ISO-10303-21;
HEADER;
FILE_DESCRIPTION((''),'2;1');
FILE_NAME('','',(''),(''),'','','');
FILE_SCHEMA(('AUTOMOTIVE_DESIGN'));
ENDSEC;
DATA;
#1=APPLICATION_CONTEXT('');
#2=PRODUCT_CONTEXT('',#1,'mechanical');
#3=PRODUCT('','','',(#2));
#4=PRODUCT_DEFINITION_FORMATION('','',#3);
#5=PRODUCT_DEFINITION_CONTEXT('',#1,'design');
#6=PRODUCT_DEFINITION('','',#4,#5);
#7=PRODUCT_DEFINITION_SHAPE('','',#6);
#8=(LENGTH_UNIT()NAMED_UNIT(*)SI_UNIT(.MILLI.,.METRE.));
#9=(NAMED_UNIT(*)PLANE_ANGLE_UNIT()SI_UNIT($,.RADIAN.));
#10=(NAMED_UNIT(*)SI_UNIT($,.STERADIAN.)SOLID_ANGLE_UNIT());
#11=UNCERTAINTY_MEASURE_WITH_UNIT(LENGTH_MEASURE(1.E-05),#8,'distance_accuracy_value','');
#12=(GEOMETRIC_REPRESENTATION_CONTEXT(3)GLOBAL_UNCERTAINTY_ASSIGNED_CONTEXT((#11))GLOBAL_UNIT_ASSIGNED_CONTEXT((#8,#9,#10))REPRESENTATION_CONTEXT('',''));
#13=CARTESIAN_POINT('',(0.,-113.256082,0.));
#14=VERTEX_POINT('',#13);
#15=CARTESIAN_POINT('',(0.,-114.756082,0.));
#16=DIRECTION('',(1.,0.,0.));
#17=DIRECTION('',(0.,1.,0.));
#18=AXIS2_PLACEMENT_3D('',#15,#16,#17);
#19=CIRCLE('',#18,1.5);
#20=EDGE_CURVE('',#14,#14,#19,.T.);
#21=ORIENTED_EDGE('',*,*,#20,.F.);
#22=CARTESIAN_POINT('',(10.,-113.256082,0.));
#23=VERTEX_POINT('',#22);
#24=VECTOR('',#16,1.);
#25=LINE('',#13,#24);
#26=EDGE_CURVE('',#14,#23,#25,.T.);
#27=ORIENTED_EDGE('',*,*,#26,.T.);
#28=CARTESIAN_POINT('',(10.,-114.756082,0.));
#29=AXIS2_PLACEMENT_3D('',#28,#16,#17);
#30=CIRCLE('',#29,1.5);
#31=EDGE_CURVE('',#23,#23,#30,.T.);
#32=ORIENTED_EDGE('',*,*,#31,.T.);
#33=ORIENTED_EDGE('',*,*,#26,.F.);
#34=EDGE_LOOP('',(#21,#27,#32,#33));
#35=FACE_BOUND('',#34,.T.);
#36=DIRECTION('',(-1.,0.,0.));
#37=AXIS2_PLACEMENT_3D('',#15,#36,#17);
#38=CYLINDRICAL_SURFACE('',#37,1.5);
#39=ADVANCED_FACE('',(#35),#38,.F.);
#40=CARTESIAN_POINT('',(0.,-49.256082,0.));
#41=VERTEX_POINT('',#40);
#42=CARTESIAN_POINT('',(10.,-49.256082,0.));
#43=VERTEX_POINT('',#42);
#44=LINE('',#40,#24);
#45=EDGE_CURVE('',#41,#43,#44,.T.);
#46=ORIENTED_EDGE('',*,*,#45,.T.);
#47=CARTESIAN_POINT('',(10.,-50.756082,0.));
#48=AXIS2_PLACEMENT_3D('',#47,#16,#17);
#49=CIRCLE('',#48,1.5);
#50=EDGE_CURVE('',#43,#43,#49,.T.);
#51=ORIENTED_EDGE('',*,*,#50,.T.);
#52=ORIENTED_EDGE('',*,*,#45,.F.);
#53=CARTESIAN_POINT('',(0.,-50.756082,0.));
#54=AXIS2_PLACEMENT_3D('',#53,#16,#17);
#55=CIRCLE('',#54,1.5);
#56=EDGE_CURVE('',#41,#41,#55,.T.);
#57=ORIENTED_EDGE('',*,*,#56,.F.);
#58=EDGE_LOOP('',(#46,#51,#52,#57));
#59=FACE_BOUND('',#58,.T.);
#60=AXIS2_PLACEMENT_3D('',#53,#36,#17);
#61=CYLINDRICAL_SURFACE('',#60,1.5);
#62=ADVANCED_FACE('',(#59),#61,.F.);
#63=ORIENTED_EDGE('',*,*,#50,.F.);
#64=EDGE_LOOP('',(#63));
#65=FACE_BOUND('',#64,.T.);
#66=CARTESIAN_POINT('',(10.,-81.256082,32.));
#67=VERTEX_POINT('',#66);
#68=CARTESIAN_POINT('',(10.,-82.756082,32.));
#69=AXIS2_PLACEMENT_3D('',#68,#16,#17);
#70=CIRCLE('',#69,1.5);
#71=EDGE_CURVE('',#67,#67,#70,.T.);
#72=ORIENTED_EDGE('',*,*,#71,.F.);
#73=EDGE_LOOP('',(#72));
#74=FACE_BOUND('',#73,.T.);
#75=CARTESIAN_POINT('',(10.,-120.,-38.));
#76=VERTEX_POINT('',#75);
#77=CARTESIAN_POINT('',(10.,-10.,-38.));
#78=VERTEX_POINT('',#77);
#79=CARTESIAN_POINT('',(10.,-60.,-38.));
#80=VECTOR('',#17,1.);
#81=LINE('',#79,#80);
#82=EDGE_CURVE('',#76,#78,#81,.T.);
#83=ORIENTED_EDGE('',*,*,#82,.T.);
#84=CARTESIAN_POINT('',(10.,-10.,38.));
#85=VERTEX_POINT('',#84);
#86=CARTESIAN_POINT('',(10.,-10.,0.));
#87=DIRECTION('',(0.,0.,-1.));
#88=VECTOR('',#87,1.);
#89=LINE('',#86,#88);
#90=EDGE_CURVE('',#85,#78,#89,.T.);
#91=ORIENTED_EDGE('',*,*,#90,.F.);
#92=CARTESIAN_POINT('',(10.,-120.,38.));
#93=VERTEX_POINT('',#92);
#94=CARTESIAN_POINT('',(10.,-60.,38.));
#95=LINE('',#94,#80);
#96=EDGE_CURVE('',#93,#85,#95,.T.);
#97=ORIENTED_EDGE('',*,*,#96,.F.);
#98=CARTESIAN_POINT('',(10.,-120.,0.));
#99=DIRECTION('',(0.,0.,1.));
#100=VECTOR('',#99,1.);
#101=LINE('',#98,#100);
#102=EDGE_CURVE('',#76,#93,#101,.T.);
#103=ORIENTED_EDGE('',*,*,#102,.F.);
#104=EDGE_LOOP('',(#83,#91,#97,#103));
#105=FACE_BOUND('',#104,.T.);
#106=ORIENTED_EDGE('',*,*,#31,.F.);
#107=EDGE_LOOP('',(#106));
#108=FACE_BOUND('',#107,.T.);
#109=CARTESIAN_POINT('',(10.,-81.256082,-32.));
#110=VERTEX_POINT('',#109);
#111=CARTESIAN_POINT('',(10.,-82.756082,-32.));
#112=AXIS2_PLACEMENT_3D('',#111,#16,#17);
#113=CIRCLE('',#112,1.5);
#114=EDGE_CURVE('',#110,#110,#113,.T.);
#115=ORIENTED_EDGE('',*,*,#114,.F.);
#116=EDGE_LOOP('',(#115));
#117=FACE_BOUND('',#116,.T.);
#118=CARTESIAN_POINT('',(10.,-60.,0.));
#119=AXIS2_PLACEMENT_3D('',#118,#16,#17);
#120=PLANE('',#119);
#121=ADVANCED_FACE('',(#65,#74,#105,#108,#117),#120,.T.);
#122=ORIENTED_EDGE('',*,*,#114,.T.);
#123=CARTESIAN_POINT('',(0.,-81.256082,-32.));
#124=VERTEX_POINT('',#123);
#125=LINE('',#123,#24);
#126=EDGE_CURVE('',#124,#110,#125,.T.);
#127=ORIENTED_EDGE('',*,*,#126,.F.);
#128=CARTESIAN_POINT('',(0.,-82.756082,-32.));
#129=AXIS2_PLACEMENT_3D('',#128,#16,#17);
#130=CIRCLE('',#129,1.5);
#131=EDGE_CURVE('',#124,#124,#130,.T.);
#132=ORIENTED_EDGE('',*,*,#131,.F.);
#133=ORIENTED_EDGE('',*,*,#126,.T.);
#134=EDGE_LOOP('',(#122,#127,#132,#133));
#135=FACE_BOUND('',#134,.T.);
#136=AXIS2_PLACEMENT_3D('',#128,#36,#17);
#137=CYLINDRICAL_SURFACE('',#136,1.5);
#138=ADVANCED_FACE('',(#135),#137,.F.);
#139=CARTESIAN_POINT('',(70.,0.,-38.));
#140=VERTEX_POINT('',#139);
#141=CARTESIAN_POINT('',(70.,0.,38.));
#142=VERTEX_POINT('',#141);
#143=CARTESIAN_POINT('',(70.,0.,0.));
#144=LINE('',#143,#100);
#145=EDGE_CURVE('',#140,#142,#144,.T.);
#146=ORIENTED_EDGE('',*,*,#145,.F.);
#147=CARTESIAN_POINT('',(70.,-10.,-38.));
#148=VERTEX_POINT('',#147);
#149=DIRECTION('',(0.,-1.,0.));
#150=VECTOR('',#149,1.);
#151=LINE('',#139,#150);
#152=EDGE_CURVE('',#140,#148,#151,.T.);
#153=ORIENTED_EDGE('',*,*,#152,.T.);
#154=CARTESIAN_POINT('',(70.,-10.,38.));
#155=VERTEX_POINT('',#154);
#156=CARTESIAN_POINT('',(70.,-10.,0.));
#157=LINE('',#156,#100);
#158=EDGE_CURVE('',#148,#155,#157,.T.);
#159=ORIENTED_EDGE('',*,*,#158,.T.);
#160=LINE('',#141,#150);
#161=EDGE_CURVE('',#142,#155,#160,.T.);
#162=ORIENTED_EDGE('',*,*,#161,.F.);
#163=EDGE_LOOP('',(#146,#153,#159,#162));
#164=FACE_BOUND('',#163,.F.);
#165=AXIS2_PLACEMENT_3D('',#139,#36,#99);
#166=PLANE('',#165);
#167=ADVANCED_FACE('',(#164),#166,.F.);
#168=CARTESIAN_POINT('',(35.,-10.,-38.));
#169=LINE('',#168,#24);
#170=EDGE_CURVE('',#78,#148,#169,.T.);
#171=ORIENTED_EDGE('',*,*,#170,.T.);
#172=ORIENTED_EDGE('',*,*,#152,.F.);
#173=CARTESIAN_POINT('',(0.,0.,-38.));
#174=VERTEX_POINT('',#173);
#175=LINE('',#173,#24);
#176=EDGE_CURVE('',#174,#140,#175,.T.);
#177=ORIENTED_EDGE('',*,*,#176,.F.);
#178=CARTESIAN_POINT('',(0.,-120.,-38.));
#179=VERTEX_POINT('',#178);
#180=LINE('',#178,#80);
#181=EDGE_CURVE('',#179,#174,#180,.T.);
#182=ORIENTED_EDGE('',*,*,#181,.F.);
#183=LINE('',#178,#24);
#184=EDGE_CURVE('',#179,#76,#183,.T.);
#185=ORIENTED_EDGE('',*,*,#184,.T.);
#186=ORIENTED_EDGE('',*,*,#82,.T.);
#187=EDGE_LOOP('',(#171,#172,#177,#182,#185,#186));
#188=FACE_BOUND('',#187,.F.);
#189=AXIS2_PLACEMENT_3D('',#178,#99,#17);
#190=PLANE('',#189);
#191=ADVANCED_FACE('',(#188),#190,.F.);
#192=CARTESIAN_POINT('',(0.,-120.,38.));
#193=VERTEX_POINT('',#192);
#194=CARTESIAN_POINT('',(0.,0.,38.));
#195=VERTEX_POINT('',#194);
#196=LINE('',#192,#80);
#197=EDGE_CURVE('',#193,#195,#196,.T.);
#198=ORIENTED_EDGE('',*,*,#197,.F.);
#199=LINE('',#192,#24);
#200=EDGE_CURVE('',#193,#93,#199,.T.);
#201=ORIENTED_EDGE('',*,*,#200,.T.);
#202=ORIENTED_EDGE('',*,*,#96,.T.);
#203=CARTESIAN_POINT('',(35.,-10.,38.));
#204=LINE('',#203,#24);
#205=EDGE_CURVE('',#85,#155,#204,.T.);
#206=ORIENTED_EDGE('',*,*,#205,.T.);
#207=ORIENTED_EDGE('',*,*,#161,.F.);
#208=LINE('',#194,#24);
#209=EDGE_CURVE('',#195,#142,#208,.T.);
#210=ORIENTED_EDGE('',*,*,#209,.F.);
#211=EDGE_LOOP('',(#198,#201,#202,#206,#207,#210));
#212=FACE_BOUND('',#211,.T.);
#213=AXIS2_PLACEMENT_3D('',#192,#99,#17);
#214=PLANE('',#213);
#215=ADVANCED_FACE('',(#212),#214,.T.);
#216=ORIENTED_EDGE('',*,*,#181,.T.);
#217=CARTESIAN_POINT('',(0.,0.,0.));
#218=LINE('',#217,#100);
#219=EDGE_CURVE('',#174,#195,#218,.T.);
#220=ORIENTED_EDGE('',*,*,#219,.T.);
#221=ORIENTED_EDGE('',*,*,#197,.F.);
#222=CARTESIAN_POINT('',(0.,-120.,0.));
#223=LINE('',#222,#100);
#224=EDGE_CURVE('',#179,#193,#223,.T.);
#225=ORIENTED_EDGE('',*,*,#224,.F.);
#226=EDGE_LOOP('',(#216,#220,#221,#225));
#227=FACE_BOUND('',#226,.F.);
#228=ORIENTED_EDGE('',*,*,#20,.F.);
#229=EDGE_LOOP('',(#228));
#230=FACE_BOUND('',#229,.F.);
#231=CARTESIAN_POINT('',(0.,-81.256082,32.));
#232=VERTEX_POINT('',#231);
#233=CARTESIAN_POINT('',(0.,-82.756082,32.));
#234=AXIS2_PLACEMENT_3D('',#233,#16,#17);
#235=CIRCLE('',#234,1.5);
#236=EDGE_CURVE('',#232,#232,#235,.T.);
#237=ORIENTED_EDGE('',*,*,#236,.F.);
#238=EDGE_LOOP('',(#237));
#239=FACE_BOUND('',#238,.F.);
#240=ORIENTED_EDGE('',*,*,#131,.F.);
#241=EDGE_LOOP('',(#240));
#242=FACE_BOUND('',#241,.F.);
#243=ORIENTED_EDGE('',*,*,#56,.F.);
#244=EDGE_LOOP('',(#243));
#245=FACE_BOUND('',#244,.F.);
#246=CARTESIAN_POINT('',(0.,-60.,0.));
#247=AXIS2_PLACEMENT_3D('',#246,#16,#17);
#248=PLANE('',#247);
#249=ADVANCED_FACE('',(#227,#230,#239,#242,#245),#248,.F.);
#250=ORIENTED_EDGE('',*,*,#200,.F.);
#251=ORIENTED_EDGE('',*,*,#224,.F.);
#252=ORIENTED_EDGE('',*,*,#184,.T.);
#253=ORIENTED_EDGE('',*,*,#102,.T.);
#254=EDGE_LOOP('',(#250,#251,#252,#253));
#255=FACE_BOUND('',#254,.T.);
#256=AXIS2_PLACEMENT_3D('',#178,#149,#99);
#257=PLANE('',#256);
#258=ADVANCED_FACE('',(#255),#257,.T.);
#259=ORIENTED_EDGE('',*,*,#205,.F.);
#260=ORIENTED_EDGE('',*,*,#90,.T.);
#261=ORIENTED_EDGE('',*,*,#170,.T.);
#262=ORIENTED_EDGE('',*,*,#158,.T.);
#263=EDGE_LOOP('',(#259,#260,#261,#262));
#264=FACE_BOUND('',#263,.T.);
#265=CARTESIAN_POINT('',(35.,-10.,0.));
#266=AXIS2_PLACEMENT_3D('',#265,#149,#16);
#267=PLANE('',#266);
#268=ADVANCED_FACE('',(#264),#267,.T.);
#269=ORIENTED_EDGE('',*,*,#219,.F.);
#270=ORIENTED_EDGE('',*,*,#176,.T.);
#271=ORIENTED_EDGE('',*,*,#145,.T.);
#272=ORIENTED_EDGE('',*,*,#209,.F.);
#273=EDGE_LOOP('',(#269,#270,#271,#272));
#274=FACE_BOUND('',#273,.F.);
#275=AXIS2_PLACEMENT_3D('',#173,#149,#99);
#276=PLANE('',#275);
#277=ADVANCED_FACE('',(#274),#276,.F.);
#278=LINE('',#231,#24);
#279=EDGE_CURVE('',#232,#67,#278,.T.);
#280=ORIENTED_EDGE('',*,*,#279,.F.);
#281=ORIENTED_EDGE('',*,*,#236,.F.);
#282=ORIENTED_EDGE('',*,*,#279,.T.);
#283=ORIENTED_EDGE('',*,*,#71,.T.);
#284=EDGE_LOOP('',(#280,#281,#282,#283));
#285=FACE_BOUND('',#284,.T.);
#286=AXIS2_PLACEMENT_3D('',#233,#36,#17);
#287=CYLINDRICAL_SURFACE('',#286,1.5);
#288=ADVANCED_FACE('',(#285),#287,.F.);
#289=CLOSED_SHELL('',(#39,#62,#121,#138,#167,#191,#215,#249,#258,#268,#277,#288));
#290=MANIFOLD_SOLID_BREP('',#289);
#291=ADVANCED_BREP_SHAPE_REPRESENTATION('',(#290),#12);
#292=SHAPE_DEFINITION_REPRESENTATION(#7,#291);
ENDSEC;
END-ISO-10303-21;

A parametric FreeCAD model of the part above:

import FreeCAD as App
import Part
import Sketcher
Q = App.Units.Quantity


def add_polygon(sketch, points):
    """Adds a closed chain of lines whose ends are joined by coincident constraints."""
    first, n = sketch.GeometryCount, len(points)
    for a, b in zip(points, points[1:] + points[:1]):
        sketch.addGeometry(Part.LineSegment(App.Vector(*a, 0), App.Vector(*b, 0)), False)
    for i in range(n):
        sketch.addConstraint(Sketcher.Constraint("Coincident", first + i, 2, first + (i + 1) % n, 1))

doc = App.newDocument("Part")
body = doc.addObject("PartDesign::Body", "Body")

sketch1 = body.newObject("Sketcher::SketchObject", "Sketch")
sketch1.AttachmentSupport = (doc.getObject("YZ_Plane"), [""])
sketch1.MapMode = "FlatFace"
add_polygon(sketch1, [(-120, 38), (-120, -38), (0, -38), (0, 38)])
sketch1.addGeometry(Part.Circle(App.Vector(-82.8, -32, 0), App.Vector(0, 0, 1), 1.5), False)
sketch1.addGeometry(Part.Circle(App.Vector(-114.8, 0, 0), App.Vector(0, 0, 1), 1.5), False)
sketch1.addGeometry(Part.Circle(App.Vector(-50.8, 0, 0), App.Vector(0, 0, 1), 1.5), False)
sketch1.addGeometry(Part.Circle(App.Vector(-82.8, 32, 0), App.Vector(0, 0, 1), 1.5), False)
sketch1.addConstraint([
    Sketcher.Constraint("Vertical", 0),
    Sketcher.Constraint("Horizontal", 1),
    Sketcher.Constraint("Vertical", 2),
    Sketcher.Constraint("Horizontal", 3),
    Sketcher.Constraint("Equal", 4, 5),
    Sketcher.Constraint("Equal", 5, 6),
    Sketcher.Constraint("Equal", 6, 7),
    Sketcher.Constraint("Symmetric", 1, 2, 2, 2, -1, 1),
    Sketcher.Constraint("Symmetric", 4, 3, 7, 3, -1),
    Sketcher.Constraint("PointOnObject", 5, 3, -1),
    Sketcher.Constraint("PointOnObject", 6, 3, -1),
    Sketcher.Constraint("Diameter", 4, Q("3 mm")),
    Sketcher.Constraint("DistanceX", 1, 1, 1, 2, Q("120 mm")),
    Sketcher.Constraint("DistanceY", 0, 2, 0, 1, Q("76 mm")),
    Sketcher.Constraint("DistanceY", 4, 3, -1, 1, Q("32 mm")),
    Sketcher.Constraint("DistanceX", 5, 3, 4, 3, Q("32 mm")),
    Sketcher.Constraint("DistanceX", 4, 3, 6, 3, Q("32 mm")),
    Sketcher.Constraint("DistanceX", 0, 2, 6, 3, Q("69.243918 mm")),
])
pad1 = body.newObject("PartDesign::Pad", "Pad")
pad1.Profile = sketch1
pad1.Length = 10

sketch2 = body.newObject("Sketcher::SketchObject", "Sketch001")
sketch2.AttachmentSupport = (doc.getObject("XZ_Plane"), [""])
sketch2.MapMode = "FlatFace"
add_polygon(sketch2, [(0, 38), (0, -38), (70, -38), (70, 38)])
sketch2.addConstraint([
    Sketcher.Constraint("Vertical", 0),
    Sketcher.Constraint("Horizontal", 1),
    Sketcher.Constraint("Vertical", 2),
    Sketcher.Constraint("Horizontal", 3),
    Sketcher.Constraint("Symmetric", 0, 2, 3, 2, -1, 1),
    Sketcher.Constraint("DistanceX", 1, 1, 1, 2, Q("70 mm")),
    Sketcher.Constraint("DistanceY", 0, 2, 0, 1, Q("76 mm")),
])
pad2 = body.newObject("PartDesign::Pad", "Pad001")
pad2.Profile = sketch2
pad2.Length = 10

doc.recompute()
